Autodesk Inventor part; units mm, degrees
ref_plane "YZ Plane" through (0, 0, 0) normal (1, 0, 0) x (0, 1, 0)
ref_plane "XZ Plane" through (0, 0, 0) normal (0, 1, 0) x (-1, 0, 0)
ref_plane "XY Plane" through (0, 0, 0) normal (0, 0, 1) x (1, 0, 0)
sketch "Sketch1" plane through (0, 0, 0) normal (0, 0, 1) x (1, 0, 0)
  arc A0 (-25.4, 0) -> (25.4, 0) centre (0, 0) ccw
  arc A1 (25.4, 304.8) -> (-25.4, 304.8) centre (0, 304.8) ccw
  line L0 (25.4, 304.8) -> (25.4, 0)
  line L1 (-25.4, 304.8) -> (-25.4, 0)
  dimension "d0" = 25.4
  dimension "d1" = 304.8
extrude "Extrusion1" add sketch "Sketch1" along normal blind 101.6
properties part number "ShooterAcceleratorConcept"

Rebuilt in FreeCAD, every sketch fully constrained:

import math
import FreeCAD as App
import Part
import Sketcher
Q = App.Units.Quantity

doc = App.newDocument("Part")
params = doc.addObject("Spreadsheet::Sheet", "Params")
for row, (alias, value) in enumerate([
    ("sketch1_radius", "1 in"),
    ("sketch1_height", "12 in"),
    ("pad1_length", "4 in"),
], start=1):
    params.set(f"A{row}", alias)
    params.set(f"B{row}", "=" + value)
    params.setAlias(f"B{row}", alias)

body = doc.addObject("PartDesign::Body", "Body")

sketch1 = doc.addObject("Sketcher::SketchObject", "Sketch")
body.addObject(sketch1)
sketch1.AttachmentSupport = (doc.XY_Plane, [""])
sketch1.MapMode = "FlatFace"
sketch1.addGeometry([
    Part.LineSegment(App.Vector(-25.4, 304.8, 0), App.Vector(-25.4, 0, 0)),
    Part.ArcOfCircle(Part.Circle(App.Vector(0, 0, 0), App.Vector(0, 0, 1), 25.4), math.radians(180), math.radians(360)),
    Part.LineSegment(App.Vector(25.4, 0, 0), App.Vector(25.4, 304.8, 0)),
    Part.ArcOfCircle(Part.Circle(App.Vector(0, 304.8, 0), App.Vector(0, 0, 1), 25.4), math.radians(0), math.radians(180)),
], False)
sketch1.addConstraint([
    Sketcher.Constraint("Tangent", 0, 2, 1, 1),
    Sketcher.Constraint("Tangent", 1, 2, 2, 1),
    Sketcher.Constraint("Tangent", 2, 2, 3, 1),
    Sketcher.Constraint("Tangent", 3, 2, 0, 1),
    Sketcher.Constraint("Vertical", 0),
    Sketcher.Constraint("Vertical", 2),
    Sketcher.Constraint("Coincident", 1, 3, -1, 1),
    Sketcher.Constraint("Radius", 1, Q("1 in")),
    Sketcher.Constraint("DistanceY", 0, 2, 0, 1, Q("12 in")),
])
sketch1.setExpression("Constraints[7]", "Params.sketch1_radius")
sketch1.setExpression("Constraints[8]", "Params.sketch1_height")
pad1 = doc.addObject("PartDesign::Pad", "Pad")
body.addObject(pad1)
pad1.Profile = sketch1
pad1.setExpression("Length", "Params.pad1_length")

doc.recompute()
